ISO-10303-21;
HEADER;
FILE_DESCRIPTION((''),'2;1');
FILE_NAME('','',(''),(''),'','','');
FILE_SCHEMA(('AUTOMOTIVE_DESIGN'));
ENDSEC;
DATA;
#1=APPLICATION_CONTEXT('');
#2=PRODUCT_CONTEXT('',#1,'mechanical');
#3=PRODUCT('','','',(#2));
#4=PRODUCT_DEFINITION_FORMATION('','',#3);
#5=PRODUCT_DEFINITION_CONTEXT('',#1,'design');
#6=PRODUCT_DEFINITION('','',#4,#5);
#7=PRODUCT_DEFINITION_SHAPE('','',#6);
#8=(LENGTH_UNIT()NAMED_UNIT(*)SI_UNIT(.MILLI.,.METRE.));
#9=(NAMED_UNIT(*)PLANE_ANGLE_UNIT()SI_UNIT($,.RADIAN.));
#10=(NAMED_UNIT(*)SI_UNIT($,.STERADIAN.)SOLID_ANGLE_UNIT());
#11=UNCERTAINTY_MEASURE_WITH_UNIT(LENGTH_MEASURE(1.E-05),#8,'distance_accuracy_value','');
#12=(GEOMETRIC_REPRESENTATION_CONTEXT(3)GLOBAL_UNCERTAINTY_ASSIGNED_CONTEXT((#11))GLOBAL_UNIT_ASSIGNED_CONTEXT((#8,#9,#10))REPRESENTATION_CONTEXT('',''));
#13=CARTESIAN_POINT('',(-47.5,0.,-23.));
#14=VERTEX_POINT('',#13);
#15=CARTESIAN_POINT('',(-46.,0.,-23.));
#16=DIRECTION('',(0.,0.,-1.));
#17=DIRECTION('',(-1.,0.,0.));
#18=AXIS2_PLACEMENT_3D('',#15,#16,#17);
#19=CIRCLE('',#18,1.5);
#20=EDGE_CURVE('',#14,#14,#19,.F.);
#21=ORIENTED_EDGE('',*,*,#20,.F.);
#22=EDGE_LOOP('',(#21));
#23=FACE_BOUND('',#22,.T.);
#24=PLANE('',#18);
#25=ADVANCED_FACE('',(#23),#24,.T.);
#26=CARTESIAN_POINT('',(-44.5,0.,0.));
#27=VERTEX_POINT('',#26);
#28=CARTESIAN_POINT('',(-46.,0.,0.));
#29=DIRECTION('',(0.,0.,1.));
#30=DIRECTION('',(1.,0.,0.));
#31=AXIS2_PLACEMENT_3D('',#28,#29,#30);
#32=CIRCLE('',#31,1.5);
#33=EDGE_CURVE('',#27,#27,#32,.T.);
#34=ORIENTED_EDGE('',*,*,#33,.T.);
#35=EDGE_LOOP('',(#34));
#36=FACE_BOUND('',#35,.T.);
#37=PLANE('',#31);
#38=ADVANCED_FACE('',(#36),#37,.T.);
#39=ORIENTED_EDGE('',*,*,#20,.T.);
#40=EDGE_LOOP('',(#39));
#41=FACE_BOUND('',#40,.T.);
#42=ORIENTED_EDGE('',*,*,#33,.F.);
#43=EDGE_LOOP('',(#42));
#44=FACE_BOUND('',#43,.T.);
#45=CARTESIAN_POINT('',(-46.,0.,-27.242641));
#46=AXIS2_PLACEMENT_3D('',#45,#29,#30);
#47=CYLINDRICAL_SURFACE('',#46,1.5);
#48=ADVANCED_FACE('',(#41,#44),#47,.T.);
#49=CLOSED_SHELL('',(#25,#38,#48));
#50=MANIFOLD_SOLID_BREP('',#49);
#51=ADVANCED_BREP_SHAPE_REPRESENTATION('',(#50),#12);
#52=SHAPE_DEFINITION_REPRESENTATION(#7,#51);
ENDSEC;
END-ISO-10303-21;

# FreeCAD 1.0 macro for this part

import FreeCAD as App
import Part
import Sketcher

V = App.Vector
Q = App.Units.Quantity

doc = App.newDocument("Part")
params = doc.addObject("Spreadsheet::Sheet", "Params")
for row, (alias, value) in enumerate([
    ("sketch1_diameter", "3 mm"),
    ("pad1_length", "23 mm"),
], start=1):
    params.set(f"A{row}", alias)
    params.set(f"B{row}", "=" + value)
    params.setAlias(f"B{row}", alias)

body = doc.addObject("PartDesign::Body", "Body")

# Sketch on XY plane
sketch1 = body.newObject("Sketcher::SketchObject", "Sketch")
sketch1.AttachmentSupport = (doc.getObject("XY_Plane"), [""])
sketch1.MapMode = "FlatFace"
sketch1.addGeometry(Part.Circle(V(-46, 0, 0), V(0, 0, 1), 1.5), False)
sketch1.addConstraint(Sketcher.Constraint("PointOnObject", 0, 3, -1))
sketch1.addConstraint(Sketcher.Constraint("Diameter", 0, Q("3 mm")))
sketch1.addConstraint(Sketcher.Constraint("DistanceX", 0, 3, -1, 1, Q("46 mm")))
sketch1.setExpression("Constraints[1]", "Params.sketch1_diameter")
pad1 = body.newObject("PartDesign::Pad", "Pad")
pad1.Profile = sketch1
pad1.setExpression("Length", "Params.pad1_length")
pad1.Reversed = True

doc.recompute()
